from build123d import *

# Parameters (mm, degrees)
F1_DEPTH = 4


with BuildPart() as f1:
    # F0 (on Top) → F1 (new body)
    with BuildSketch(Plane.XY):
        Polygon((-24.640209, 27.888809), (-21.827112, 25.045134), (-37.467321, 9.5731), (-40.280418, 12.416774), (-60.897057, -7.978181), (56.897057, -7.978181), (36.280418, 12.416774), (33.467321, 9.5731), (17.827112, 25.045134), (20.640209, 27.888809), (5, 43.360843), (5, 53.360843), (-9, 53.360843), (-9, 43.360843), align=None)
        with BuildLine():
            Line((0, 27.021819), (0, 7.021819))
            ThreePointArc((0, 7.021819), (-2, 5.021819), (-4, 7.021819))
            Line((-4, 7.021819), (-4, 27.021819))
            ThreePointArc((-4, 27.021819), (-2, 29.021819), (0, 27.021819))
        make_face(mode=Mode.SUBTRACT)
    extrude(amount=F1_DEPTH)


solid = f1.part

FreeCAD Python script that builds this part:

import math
import FreeCAD as App
import Part
import Sketcher
Q = App.Units.Quantity


def add_polygon(sketch, points):
    """Adds a closed chain of lines whose ends are joined by coincident constraints."""
    first, n = sketch.GeometryCount, len(points)
    for a, b in zip(points, points[1:] + points[:1]):
        sketch.addGeometry(Part.LineSegment(App.Vector(*a, 0), App.Vector(*b, 0)), False)
    for i in range(n):
        sketch.addConstraint(Sketcher.Constraint("Coincident", first + i, 2, first + (i + 1) % n, 1))

doc = App.newDocument("Part")
body = doc.addObject("PartDesign::Body", "Body")

# Sketch on XY plane
sketch1 = body.newObject("Sketcher::SketchObject", "Sketch")
sketch1.AttachmentSupport = (doc.getObject("XY_Plane"), [""])
sketch1.MapMode = "FlatFace"
add_polygon(sketch1, [(-24.6, 27.9), (-21.8, 25), (-37.5, 9.6), (-40.3, 12.4), (-60.9, -8), (56.9, -8), (36.3, 12.4), (33.5, 9.6), (17.8, 25), (20.6, 27.9), (5, 43.4), (5, 53.4), (-9, 53.4), (-9, 43.4)])  # lines 0-13
sketch1.addGeometry(Part.ArcOfCircle(Part.Circle(App.Vector(-2, 27, 0), App.Vector(0, 0, 1), 2), math.radians(0), math.radians(180)), False)  # 14
sketch1.addGeometry(Part.LineSegment(App.Vector(0, 27, 0), App.Vector(0, 7, 0)), False)  # 15
sketch1.addGeometry(Part.ArcOfCircle(Part.Circle(App.Vector(-2, 7, 0), App.Vector(0, 0, 1), 2), math.radians(180), math.radians(360)), False)  # 16
sketch1.addGeometry(Part.LineSegment(App.Vector(-4, 7, 0), App.Vector(-4, 27, 0)), False)  # 17
sketch1.addConstraint([
    Sketcher.Constraint("Tangent", 14, 1, 15, 1),
    Sketcher.Constraint("Tangent", 15, 2, 16, 2),
    Sketcher.Constraint("Tangent", 16, 1, 17, 1),
    Sketcher.Constraint("Tangent", 17, 2, 14, 2),
    Sketcher.Constraint("Horizontal", 4),
    Sketcher.Constraint("Vertical", 10),
    Sketcher.Constraint("Horizontal", 11),
    Sketcher.Constraint("Vertical", 12),
    Sketcher.Constraint("Vertical", 15),
    Sketcher.Constraint("Vertical", 17),
    Sketcher.Constraint("PointOnObject", 14, 1, -2),
    Sketcher.Constraint("Perpendicular", 0, 1),
    Sketcher.Constraint("Perpendicular", 1, 2),
    Sketcher.Constraint("Perpendicular", 2, 3),
    Sketcher.Constraint("Perpendicular", 5, 6),
    Sketcher.Constraint("Perpendicular", 6, 7),
    Sketcher.Constraint("Perpendicular", 7, 8),
    Sketcher.Constraint("Perpendicular", 8, 9),
    Sketcher.Constraint("Parallel", 3, 13),
    Sketcher.Constraint("Horizontal", 2, 2, 5, 2),
    Sketcher.Constraint("Horizontal", 1, 2, 6, 2),
    Sketcher.Constraint("Horizontal", 0, 2, 7, 2),
    Sketcher.Constraint("Horizontal", 9, 2, 12, 2),
    Sketcher.Constraint("Horizontal", 8, 2, 13, 2),
    Sketcher.Constraint("Equal", 0, 2),
    Sketcher.Constraint("Equal", 3, 5),
    Sketcher.Constraint("Equal", 7, 9),
    Sketcher.Constraint("Radius", 14, Q("2 mm")),
    Sketcher.Constraint("DistanceX", 11, 2, 11, 1, Q("14 mm")),
    Sketcher.Constraint("DistanceY", 10, 1, 10, 2, Q("10 mm")),
    Sketcher.Constraint("DistanceY", 15, 2, 15, 1, Q("20 mm")),
    Sketcher.Constraint("Distance", 0, Q("4 mm")),
    Sketcher.Constraint("Distance", 1, Q("21.999999 mm")),
    Sketcher.Constraint("Distance", 3, Q("29 mm")),
    Sketcher.Constraint("DistanceX", -1, 1, 9, 2, Q("5 mm")),
    Sketcher.Constraint("DistanceY", 3, 2, 16, 3, Q("15 mm")),
    Sketcher.Constraint("DistanceY", -1, 1, 1, 2, Q("9.5731 mm")),
    Sketcher.Constraint("DistanceX", 4, 1, 4, 2, Q("117.794114 mm")),
])
pad1 = body.newObject("PartDesign::Pad", "Pad")
pad1.Profile = sketch1
pad1.Length = 4

doc.recompute()
